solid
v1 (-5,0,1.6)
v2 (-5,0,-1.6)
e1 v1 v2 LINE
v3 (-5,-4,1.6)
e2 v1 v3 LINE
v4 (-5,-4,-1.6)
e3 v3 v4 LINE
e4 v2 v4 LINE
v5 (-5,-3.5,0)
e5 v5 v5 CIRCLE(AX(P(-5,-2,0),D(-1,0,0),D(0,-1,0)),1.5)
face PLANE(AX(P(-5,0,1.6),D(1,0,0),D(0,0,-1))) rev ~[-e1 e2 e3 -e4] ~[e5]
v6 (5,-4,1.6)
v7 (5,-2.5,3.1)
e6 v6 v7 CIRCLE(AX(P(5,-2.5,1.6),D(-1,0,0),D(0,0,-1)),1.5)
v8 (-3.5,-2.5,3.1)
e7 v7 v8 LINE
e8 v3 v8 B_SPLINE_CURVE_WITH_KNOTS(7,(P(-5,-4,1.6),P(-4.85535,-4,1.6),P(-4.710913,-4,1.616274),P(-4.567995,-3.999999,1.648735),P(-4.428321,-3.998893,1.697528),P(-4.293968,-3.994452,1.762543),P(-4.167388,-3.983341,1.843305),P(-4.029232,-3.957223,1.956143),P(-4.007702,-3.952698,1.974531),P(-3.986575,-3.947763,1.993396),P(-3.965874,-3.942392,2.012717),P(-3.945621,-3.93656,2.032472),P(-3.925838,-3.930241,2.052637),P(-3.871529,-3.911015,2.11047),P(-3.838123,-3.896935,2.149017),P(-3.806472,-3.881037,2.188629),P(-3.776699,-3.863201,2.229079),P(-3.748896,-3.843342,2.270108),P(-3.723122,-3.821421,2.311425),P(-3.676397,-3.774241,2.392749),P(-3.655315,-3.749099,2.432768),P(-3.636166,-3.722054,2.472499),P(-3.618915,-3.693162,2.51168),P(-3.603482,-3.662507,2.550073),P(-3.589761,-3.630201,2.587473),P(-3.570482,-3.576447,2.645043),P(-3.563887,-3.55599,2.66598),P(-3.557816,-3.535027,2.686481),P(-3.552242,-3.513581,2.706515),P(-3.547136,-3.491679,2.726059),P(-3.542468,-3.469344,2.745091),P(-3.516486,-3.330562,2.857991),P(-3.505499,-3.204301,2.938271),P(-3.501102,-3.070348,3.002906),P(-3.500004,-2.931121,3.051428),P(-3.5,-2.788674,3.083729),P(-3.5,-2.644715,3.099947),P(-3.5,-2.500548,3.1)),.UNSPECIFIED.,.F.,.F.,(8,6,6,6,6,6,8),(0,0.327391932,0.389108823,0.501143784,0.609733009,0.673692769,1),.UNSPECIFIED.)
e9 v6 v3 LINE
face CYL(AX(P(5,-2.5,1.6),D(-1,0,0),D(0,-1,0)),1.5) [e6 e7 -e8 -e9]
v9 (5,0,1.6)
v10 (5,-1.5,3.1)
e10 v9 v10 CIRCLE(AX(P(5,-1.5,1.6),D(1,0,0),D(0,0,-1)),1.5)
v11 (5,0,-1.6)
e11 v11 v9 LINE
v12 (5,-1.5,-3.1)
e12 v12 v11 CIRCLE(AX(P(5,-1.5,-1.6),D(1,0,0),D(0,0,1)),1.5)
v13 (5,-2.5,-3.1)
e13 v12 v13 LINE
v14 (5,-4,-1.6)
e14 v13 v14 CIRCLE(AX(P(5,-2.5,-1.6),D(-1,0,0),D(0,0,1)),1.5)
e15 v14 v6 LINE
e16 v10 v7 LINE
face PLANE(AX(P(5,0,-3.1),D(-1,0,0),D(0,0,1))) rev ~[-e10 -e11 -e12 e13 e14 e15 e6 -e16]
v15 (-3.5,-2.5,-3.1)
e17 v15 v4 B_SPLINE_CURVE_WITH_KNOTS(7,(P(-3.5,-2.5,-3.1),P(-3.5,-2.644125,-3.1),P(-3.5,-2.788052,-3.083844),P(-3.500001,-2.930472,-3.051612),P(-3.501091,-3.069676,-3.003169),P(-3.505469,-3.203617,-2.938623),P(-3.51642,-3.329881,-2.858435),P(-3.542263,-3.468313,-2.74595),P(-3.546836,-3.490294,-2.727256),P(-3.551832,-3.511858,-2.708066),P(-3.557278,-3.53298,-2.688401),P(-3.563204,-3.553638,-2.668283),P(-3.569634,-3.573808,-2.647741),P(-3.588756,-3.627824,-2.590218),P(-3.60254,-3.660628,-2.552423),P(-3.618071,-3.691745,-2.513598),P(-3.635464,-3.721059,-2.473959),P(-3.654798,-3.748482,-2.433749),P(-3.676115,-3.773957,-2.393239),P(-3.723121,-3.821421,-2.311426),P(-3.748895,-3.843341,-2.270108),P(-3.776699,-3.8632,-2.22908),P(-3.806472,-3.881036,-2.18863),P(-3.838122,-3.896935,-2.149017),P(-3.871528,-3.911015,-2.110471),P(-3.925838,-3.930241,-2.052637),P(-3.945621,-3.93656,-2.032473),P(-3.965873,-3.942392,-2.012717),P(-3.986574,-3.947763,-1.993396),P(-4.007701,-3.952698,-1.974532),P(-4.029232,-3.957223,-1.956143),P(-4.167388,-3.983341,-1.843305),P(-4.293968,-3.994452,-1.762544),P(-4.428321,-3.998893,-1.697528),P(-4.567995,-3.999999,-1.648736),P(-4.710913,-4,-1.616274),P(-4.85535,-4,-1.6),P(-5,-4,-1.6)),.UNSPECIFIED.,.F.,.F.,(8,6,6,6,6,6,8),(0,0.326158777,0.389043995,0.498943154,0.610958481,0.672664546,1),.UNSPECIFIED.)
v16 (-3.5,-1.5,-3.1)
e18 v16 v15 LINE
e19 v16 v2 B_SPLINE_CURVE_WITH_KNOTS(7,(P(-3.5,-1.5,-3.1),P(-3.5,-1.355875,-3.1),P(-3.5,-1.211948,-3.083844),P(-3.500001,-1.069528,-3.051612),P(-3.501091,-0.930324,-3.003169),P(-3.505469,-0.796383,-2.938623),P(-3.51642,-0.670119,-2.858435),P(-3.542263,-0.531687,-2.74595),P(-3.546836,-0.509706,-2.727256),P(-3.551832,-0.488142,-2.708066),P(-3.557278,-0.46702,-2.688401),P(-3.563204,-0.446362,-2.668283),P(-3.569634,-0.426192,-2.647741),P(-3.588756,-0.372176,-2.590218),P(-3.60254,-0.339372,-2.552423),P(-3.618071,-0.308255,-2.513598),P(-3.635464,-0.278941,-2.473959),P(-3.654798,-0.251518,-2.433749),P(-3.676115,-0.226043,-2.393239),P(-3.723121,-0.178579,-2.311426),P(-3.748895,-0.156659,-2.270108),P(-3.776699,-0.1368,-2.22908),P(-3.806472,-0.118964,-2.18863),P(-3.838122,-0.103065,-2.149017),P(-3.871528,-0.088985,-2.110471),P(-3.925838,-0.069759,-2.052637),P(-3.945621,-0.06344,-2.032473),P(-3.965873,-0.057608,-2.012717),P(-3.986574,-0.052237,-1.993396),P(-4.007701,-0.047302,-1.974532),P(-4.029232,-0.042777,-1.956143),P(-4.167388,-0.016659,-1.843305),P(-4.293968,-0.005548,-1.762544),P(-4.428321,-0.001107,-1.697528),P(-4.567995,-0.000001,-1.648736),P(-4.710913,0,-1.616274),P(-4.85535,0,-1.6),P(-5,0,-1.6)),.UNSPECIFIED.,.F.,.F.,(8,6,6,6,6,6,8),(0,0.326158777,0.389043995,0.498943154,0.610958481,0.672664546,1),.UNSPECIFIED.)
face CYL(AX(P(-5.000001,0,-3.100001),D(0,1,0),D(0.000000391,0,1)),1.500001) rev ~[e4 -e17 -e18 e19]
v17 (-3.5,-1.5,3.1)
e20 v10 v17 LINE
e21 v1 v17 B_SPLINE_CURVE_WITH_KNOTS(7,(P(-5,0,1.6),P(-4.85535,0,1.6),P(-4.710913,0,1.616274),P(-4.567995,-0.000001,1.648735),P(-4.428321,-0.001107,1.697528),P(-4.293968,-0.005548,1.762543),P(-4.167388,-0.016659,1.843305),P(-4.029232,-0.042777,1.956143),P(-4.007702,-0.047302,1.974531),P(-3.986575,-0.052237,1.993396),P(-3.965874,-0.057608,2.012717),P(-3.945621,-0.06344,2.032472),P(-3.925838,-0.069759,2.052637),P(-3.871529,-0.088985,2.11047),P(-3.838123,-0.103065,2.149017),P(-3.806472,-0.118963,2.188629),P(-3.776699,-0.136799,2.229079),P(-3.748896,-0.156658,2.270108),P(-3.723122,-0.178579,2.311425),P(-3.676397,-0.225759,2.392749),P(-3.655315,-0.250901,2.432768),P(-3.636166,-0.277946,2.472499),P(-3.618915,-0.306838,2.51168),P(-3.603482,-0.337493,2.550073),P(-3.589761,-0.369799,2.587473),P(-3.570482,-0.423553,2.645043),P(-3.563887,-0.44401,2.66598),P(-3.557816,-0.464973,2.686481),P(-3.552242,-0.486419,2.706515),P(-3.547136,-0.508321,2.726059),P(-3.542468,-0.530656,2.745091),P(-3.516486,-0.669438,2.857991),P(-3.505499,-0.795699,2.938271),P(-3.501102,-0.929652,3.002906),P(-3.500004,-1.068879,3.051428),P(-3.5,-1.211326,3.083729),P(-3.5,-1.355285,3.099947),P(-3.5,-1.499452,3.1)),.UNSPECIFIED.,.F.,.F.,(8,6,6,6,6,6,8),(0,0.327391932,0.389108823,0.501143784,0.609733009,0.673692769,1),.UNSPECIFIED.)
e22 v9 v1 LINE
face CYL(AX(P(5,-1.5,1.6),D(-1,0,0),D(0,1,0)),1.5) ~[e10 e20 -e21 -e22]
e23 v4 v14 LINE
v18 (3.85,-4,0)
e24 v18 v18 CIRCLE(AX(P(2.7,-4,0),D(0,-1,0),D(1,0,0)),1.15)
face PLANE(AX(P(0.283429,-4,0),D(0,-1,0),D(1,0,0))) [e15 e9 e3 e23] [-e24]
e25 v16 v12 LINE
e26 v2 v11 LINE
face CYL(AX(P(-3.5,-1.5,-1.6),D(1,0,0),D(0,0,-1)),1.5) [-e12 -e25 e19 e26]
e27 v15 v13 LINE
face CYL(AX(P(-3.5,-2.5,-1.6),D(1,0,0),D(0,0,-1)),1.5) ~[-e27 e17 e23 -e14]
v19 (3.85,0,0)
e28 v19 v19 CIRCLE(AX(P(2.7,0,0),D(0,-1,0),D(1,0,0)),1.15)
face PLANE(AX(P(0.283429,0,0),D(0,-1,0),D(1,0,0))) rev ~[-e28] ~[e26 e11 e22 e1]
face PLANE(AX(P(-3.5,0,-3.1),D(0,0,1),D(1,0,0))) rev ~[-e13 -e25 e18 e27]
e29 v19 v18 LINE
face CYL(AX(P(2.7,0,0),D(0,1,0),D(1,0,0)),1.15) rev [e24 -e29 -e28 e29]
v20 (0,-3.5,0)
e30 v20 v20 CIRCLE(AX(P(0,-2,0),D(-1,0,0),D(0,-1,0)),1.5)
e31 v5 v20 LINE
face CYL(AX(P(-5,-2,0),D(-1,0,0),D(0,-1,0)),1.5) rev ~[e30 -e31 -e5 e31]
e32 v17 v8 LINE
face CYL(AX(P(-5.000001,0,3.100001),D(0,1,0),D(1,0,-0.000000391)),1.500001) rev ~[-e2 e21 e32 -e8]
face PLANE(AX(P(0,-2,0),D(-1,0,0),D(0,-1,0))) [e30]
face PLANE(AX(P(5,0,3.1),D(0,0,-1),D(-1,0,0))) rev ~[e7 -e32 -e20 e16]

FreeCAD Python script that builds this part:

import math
import FreeCAD as App
import Part
import Sketcher

V = App.Vector


def edges_at(feature, points):
    """Names of the edges that pass closest to the given points."""
    edges = feature.Shape.Edges
    near = lambda p: min(range(len(edges)), key=lambda i: edges[i].distToShape(Part.Vertex(*p))[0])
    return sorted({f"Edge{near(p) + 1}" for p in points})

doc = App.newDocument("Part")
body = doc.addObject("PartDesign::Body", "Body")

sketch1 = body.newObject("Sketcher::SketchObject", "Sketch")
sketch1.AttachmentSupport = (doc.getObject("XZ_Plane"), [""])
sketch1.MapMode = "FlatFace"
sketch1.addGeometry([
    Part.LineSegment(V(-3.5, -3.1, 0), V(5, -3.1, 0)),
    Part.LineSegment(V(5, -3.1, 0), V(5, 3.1, 0)),
    Part.LineSegment(V(5, 3.1, 0), V(-3.5, 3.1, 0)),
    Part.ArcOfCircle(Part.Circle(V(-5, 3.1, 0), V(0, 0, 1), 1.5), math.radians(-90), math.radians(0)),
    Part.LineSegment(V(-5, 1.6, 0), V(-5, -1.6, 0)),
    Part.ArcOfCircle(Part.Circle(V(-5, -3.1, 0), V(0, 0, 1), 1.5), math.radians(0), math.radians(90)),
    Part.Circle(V(2.7, 0, 0), V(0, 0, 1), 1.1),
], False)
sketch1.addConstraint([
    Sketcher.Constraint("Coincident", 0, 2, 1, 1),
    Sketcher.Constraint("Coincident", 1, 2, 2, 1),
    Sketcher.Constraint("Coincident", 2, 2, 3, 2),
    Sketcher.Constraint("Coincident", 3, 1, 4, 1),
    Sketcher.Constraint("Coincident", 4, 2, 5, 2),
    Sketcher.Constraint("Coincident", 5, 1, 0, 1),
    Sketcher.Constraint("Horizontal", 0),
    Sketcher.Constraint("Vertical", 1),
    Sketcher.Constraint("Horizontal", 2),
    Sketcher.Constraint("Vertical", 4),
    Sketcher.Constraint("Equal", 3, 5),
    Sketcher.Constraint("Symmetric", 3, 3, 5, 3, -1),
    Sketcher.Constraint("PointOnObject", 6, 3, -1),
    Sketcher.Constraint("Horizontal", 5, 3, 0, 2),
    Sketcher.Constraint("Horizontal", 3, 3, 1, 2),
    Sketcher.Constraint("Vertical", 5, 3, 3, 1),
    Sketcher.Constraint("Diameter", 6, 2.3),
    Sketcher.Constraint("Radius", 3, 1.500001),
    Sketcher.Constraint("DistanceX", 0, 1, 0, 2, 8.5),
    Sketcher.Constraint("DistanceY", 1, 1, 1, 2, 6.2),
    Sketcher.Constraint("DistanceX", 3, 3, -1, 1, 5.000001),
    Sketcher.Constraint("DistanceX", -1, 1, 6, 3, 2.7),
])
pad1 = body.newObject("PartDesign::Pad", "Pad")
pad1.Profile = sketch1
pad1.Length = 4

sketch2 = body.newObject("Sketcher::SketchObject", "Sketch001")
sketch2.AttachmentSupport = (doc.getObject("YZ_Plane"), [""])
sketch2.MapMode = "FlatFace"
sketch2.AttachmentOffset = App.Placement(V(0, 0, -5), App.Rotation())
sketch2.addGeometry(Part.Circle(V(-2, 0, 0), V(0, 0, 1), 1.5), False)
sketch2.addConstraint([
    Sketcher.Constraint("PointOnObject", 0, 3, -1),
    Sketcher.Constraint("Diameter", 0, 3.0),
    Sketcher.Constraint("DistanceX", 0, 3, -1, 1, 2.0),
])
pocket1 = body.newObject("PartDesign::Pocket", "Pocket")
pocket1.Profile = sketch2
pocket1.Length = 5
pocket1.Reversed = True
doc.recompute()

fillet = body.newObject("PartDesign::Fillet", "Fillet")
fillet.Base = (pocket1, edges_at(pocket1, [
    (0.75, -4, -3.1),
    (0.75, -4, 3.1),
    (0.75, 0, -3.1),
    (0.75, 0, 3.1),
]))
fillet.Radius = 1.5

doc.recompute()
